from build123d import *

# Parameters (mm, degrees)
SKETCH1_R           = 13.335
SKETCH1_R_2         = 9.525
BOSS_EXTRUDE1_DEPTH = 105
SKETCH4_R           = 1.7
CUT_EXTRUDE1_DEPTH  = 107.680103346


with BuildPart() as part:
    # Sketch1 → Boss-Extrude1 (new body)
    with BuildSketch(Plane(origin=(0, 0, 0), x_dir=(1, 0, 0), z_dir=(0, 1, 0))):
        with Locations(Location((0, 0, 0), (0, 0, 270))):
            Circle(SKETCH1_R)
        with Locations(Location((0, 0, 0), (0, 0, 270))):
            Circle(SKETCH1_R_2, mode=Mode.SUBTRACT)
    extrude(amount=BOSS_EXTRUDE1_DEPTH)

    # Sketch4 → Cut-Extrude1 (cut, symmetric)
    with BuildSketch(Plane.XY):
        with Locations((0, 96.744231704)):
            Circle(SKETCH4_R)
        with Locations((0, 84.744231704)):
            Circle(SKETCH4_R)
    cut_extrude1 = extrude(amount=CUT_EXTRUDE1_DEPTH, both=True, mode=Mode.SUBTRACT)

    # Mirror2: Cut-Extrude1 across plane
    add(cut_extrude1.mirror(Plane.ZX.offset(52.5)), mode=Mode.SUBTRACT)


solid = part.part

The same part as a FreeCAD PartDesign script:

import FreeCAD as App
import Part
import Sketcher
from FreeCAD import Vector
Q = App.Units.Quantity

doc = App.newDocument("Part")
body = doc.addObject("PartDesign::Body", "Body")

# Sketch on XZ plane
sketch1 = doc.addObject("Sketcher::SketchObject", "Sketch")
body.addObject(sketch1)
sketch1.AttachmentSupport = (doc.XZ_Plane, [""])
sketch1.MapMode = "FlatFace"
sketch1.addGeometry([
    Part.Circle(Vector(0, 0, 0), Vector(0, 0, 1), 13),
    Part.Circle(Vector(0, 0, 0), Vector(0, 0, 1), 10),
], False)
sketch1.addConstraint([
    Sketcher.Constraint("Coincident", 0, 3, -1, 1),
    Sketcher.Constraint("Coincident", 1, 3, -1, 1),
    Sketcher.Constraint("Diameter", 0, Q("26.67 mm")),
    Sketcher.Constraint("Diameter", 1, Q("19.05 mm")),
])
pad1 = doc.addObject("PartDesign::Pad", "Pad")
body.addObject(pad1)
pad1.Profile = sketch1
pad1.Length = 105
pad1.Reversed = True

# Sketch on XY plane
sketch2 = doc.addObject("Sketcher::SketchObject", "Sketch001")
body.addObject(sketch2)
sketch2.AttachmentSupport = (doc.XY_Plane, [""])
sketch2.MapMode = "FlatFace"
sketch2.addGeometry([
    Part.Circle(Vector(0, 96.7, 0), Vector(0, 0, 1), 1.7),
    Part.Circle(Vector(0, 84.7, 0), Vector(0, 0, 1), 1.7),
], False)
sketch2.addConstraint([
    Sketcher.Constraint("Equal", 0, 1),
    Sketcher.Constraint("PointOnObject", 0, 3, -2),
    Sketcher.Constraint("PointOnObject", 1, 3, -2),
    Sketcher.Constraint("Diameter", 0, Q("3.4 mm")),
    Sketcher.Constraint("DistanceY", 1, 3, 0, 3, Q("12 mm")),
    Sketcher.Constraint("DistanceY", -1, 1, 0, 3, Q("96.744232 mm")),
])
pocket1 = doc.addObject("PartDesign::Pocket", "Pocket")
body.addObject(pocket1)
pocket1.Profile = sketch2
pocket1.Length = 215.360207
pocket1.Midplane = True
doc.recompute()

datumplane = doc.addObject("PartDesign::Plane", "DatumPlane")
body.addObject(datumplane)
datumplane.AttachmentSupport = (doc.XZ_Plane, [""])
datumplane.MapMode = "FlatFace"
datumplane.AttachmentOffset = App.Placement(Vector(0, 0, -52.5), App.Rotation())
mirrored = doc.addObject("PartDesign::Mirrored", "Mirrored")
body.addObject(mirrored)
mirrored.Originals = [pocket1]
mirrored.MirrorPlane = (datumplane, [""])
body.Tip = mirrored

doc.recompute()
